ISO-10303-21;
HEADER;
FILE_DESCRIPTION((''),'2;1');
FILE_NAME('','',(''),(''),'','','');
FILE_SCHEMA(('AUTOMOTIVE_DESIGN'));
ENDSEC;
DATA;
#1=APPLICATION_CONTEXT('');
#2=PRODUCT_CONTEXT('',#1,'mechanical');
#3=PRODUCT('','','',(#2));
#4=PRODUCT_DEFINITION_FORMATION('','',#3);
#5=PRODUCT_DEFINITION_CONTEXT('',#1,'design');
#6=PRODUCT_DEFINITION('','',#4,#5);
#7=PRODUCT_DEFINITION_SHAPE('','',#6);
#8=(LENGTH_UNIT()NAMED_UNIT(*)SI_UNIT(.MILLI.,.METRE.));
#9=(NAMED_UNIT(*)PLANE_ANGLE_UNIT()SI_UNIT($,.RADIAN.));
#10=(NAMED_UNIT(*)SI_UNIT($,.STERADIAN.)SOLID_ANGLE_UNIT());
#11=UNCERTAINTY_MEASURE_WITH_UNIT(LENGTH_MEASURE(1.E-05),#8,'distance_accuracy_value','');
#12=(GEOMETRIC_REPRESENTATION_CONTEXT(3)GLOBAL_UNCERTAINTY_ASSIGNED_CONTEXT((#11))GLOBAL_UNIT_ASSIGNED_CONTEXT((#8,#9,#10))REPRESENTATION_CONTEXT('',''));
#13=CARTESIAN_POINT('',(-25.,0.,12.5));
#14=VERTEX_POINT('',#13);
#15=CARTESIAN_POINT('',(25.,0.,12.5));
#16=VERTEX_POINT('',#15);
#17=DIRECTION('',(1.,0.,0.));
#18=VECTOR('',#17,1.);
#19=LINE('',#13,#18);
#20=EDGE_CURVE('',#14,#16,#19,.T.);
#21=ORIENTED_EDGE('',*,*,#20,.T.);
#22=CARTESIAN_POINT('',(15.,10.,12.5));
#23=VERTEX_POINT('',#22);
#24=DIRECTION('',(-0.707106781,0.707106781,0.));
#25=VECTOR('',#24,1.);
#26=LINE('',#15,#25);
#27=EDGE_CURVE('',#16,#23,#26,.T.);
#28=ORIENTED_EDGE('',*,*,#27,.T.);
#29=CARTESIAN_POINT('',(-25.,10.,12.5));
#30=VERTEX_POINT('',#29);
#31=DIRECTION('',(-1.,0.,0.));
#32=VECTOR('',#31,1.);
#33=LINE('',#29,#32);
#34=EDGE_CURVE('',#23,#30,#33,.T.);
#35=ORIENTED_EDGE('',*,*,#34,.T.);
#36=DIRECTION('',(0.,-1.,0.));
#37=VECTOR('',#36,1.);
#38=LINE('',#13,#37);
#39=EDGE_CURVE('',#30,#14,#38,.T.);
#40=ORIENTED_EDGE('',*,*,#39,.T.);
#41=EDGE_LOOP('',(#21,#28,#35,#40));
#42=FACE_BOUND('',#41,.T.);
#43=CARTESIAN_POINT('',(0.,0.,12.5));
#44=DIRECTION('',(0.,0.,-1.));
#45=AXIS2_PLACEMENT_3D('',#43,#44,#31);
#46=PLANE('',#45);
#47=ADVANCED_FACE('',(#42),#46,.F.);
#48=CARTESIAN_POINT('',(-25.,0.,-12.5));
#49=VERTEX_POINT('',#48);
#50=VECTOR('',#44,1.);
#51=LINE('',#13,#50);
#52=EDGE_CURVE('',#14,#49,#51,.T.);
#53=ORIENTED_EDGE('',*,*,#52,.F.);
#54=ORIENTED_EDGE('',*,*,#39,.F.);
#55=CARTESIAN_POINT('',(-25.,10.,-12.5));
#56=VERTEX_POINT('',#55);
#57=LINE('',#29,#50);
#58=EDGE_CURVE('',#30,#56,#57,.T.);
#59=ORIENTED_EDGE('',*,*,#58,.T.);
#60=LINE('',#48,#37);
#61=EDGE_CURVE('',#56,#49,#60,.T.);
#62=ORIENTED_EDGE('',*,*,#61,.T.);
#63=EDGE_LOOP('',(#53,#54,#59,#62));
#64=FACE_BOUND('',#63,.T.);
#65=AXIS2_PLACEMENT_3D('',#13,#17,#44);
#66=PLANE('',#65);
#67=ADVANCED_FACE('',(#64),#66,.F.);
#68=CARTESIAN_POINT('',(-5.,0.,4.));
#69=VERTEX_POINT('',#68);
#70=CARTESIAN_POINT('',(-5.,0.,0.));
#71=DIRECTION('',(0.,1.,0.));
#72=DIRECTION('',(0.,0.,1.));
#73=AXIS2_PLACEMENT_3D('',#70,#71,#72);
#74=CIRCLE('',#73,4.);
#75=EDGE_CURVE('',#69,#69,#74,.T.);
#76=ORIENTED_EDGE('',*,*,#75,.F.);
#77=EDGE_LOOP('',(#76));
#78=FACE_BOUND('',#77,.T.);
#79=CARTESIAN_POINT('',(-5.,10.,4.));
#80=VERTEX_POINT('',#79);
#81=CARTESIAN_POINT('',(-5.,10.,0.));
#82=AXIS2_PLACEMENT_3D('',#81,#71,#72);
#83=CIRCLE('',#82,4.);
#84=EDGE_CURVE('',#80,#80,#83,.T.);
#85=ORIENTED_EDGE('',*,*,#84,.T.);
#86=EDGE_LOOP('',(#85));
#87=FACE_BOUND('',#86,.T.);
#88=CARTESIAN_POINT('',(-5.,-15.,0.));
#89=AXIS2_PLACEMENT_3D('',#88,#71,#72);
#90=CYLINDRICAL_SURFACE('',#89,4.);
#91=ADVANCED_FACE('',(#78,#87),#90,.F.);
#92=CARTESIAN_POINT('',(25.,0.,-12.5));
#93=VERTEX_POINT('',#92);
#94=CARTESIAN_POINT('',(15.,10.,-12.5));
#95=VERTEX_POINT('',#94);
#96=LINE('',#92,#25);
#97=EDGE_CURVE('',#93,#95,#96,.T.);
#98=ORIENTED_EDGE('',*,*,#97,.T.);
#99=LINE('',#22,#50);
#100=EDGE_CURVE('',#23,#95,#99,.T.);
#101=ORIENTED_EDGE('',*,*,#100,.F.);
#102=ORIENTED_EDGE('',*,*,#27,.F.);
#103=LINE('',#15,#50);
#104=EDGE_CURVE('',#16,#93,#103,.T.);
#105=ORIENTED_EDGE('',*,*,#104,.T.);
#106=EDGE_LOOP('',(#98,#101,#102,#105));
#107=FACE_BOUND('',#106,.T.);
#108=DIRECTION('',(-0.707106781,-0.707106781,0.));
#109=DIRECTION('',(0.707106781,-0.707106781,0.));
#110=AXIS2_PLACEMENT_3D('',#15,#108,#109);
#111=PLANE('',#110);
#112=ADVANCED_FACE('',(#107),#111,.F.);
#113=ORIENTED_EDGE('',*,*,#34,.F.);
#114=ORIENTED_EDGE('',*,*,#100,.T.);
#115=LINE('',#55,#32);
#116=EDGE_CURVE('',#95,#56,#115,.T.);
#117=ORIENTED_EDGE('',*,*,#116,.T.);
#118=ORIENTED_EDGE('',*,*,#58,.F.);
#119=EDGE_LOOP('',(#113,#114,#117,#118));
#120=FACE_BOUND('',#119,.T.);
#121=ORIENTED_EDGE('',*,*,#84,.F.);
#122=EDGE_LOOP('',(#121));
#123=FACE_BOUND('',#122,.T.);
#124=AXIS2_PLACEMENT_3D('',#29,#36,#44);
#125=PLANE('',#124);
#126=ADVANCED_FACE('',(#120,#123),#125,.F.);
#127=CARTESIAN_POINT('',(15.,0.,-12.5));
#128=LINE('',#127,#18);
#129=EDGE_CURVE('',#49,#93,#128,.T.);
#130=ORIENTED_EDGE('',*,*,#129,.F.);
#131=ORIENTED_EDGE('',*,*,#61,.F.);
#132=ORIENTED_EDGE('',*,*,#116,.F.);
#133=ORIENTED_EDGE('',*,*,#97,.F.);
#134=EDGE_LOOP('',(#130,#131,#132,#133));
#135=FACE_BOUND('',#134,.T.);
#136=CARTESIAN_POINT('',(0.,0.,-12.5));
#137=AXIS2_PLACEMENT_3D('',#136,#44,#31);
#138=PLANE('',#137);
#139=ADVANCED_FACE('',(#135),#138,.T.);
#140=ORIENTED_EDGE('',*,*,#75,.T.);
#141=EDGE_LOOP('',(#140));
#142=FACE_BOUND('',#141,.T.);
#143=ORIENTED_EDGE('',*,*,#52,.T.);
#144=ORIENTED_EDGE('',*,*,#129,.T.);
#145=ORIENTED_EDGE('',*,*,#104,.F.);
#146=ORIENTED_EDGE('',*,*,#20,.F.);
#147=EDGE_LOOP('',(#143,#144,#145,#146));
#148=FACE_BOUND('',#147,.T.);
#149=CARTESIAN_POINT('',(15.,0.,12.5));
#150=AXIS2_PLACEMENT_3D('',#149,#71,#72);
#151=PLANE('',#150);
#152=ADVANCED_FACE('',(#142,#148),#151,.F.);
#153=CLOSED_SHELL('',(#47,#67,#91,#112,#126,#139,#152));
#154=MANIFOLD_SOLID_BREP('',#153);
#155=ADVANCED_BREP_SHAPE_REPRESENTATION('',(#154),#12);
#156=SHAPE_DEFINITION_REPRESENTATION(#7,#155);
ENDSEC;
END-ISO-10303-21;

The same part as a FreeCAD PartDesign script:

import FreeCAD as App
import Part
import Sketcher

V = App.Vector

doc = App.newDocument("Part")
body = doc.addObject("PartDesign::Body", "Body")

# Sketch on XY plane
sketch1 = body.newObject("Sketcher::SketchObject", "Sketch")
sketch1.AttachmentSupport = (doc.getObject("XY_Plane"), [""])
sketch1.MapMode = "FlatFace"
sketch1.addGeometry([
    Part.LineSegment(V(25, 0, 0), V(15, 10, 0)),
    Part.LineSegment(V(15, 10, 0), V(-25, 10, 0)),
    Part.LineSegment(V(-25, 10, 0), V(-25, 0, 0)),
    Part.LineSegment(V(-25, 0, 0), V(25, 0, 0)),
], False)
sketch1.addConstraint([
    Sketcher.Constraint("Coincident", 0, 2, 1, 1),
    Sketcher.Constraint("Coincident", 1, 2, 2, 1),
    Sketcher.Constraint("Coincident", 2, 2, 3, 1),
    Sketcher.Constraint("Coincident", 3, 2, 0, 1),
    Sketcher.Constraint("Horizontal", 1),
    Sketcher.Constraint("Vertical", 2),
    Sketcher.Constraint("Horizontal", 3),
    Sketcher.Constraint("Symmetric", 2, 2, 3, 2, -1, 1),
    Sketcher.Constraint("DistanceX", 1, 2, 1, 1, 40.0),
    Sketcher.Constraint("DistanceX", 3, 1, 3, 2, 50.0),
    Sketcher.Constraint("DistanceY", 2, 2, 2, 1, 10.0),
])
pad1 = body.newObject("PartDesign::Pad", "Pad")
pad1.Profile = sketch1
pad1.Length = 25
pad1.Midplane = True

# Sketch on XZ plane
sketch2 = body.newObject("Sketcher::SketchObject", "Sketch001")
sketch2.AttachmentSupport = (doc.getObject("XZ_Plane"), [""])
sketch2.MapMode = "FlatFace"
sketch2.AttachmentOffset = App.Placement(V(0, 0, -10), App.Rotation())
sketch2.addGeometry(Part.Circle(V(-5, 0, 0), V(0, 0, 1), 4), False)
sketch2.addConstraint([
    Sketcher.Constraint("PointOnObject", 0, 3, -1),
    Sketcher.Constraint("Diameter", 0, 8.0),
    Sketcher.Constraint("DistanceX", 0, 3, -1, 1, 5.0),
])
pocket1 = body.newObject("PartDesign::Pocket", "Pocket")
pocket1.Profile = sketch2
pocket1.Length = 25
pocket1.Reversed = True

doc.recompute()
